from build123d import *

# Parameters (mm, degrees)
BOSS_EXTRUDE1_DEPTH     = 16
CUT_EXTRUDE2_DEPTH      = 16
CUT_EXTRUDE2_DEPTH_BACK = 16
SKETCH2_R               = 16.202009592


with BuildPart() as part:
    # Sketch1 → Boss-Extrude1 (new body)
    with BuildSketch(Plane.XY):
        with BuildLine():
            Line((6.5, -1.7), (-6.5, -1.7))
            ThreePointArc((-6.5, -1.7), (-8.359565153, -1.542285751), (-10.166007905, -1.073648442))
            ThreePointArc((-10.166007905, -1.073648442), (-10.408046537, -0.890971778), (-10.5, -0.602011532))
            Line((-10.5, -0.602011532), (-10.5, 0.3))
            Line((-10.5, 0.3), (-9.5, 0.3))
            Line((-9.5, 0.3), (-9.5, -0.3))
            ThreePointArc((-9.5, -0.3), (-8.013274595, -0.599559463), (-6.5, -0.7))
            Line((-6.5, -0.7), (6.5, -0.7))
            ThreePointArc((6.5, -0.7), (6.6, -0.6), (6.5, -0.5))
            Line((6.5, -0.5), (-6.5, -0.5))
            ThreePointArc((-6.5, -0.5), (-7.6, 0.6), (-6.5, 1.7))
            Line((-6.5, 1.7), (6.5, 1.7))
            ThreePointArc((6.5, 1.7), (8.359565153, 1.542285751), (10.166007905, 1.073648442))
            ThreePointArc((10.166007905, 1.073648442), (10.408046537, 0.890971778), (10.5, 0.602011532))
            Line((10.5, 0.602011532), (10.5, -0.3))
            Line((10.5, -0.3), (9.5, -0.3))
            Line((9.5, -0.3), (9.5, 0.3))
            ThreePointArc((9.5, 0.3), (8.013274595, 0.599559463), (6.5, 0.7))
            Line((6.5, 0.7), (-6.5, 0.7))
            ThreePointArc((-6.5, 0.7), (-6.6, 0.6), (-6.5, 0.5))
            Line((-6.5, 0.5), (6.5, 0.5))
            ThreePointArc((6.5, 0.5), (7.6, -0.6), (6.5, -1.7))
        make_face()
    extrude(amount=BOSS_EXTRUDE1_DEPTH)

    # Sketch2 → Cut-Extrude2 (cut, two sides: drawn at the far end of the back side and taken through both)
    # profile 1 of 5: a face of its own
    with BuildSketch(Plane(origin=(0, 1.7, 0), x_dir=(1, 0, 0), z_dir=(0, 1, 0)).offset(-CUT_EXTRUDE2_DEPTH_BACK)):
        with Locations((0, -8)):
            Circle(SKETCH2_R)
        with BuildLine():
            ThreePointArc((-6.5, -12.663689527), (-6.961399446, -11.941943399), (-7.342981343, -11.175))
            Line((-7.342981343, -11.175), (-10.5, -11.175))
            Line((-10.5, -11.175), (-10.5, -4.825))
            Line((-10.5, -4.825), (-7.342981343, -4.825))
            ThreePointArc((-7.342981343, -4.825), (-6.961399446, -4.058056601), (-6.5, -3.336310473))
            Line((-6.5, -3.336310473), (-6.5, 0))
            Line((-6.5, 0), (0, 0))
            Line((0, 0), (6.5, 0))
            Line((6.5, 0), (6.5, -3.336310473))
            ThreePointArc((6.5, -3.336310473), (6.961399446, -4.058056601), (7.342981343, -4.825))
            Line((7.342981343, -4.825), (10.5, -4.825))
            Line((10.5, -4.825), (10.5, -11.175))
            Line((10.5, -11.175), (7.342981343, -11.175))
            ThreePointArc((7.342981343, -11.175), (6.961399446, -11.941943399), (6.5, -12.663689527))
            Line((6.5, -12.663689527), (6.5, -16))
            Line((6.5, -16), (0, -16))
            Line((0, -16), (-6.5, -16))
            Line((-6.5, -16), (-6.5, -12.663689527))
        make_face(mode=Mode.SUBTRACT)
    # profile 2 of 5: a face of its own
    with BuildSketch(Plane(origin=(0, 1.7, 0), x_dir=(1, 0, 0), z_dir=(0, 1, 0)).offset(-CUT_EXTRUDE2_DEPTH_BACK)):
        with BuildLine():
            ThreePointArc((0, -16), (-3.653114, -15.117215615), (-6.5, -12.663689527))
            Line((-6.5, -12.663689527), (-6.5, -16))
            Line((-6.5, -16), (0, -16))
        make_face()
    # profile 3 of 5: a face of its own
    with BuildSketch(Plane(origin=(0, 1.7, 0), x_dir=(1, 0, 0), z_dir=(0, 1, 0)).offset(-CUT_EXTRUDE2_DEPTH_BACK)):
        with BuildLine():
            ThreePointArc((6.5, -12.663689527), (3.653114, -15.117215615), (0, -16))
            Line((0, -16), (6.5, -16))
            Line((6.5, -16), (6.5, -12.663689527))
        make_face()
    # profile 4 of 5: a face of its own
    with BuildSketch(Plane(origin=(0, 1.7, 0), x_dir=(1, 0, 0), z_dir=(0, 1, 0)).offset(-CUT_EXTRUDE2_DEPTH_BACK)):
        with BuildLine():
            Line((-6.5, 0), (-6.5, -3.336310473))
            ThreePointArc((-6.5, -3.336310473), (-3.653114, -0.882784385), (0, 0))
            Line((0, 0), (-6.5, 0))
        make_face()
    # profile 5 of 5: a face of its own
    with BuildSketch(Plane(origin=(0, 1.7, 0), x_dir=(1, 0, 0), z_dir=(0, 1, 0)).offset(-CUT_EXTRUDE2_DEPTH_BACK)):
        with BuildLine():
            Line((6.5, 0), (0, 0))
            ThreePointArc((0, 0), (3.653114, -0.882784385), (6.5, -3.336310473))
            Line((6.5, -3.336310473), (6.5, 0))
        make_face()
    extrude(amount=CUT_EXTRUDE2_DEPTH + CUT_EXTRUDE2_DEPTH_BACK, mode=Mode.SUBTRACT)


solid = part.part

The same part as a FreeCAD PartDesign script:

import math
import FreeCAD as App
import Part
import Sketcher

V = App.Vector
Q = App.Units.Quantity

doc = App.newDocument("Part")
params = doc.addObject("Spreadsheet::Sheet", "Params")
for row, (alias, value) in enumerate([
    ("sketch1_radius", "1.1 mm"),
    ("sketch1_radius2", "0.1 mm"),
    ("sketch1_radius3", "0.5 mm"),
    ("sketch1_width", "13 mm"),
    ("sketch1_width2", "1 mm"),
    ("pad1_length", "16 mm"),
    ("sketch2_radius", "8 mm"),
    ("sketch2_height", "6.35 mm"),
], start=1):
    params.set(f"A{row}", alias)
    params.set(f"B{row}", "=" + value)
    params.setAlias(f"B{row}", alias)

body = doc.addObject("PartDesign::Body", "Body")

sketch1 = body.newObject("Sketcher::SketchObject", "Sketch")
sketch1.AttachmentSupport = (doc.getObject("XY_Plane"), [""])
sketch1.MapMode = "FlatFace"
sketch1.addGeometry([
    Part.LineSegment(V(-6.5, -1.7, 0), V(6.5, -1.7, 0)),
    Part.ArcOfCircle(Part.Circle(V(6.5, -0.6, 0), V(0, 0, 1), 1.1), math.radians(-90), math.radians(90)),
    Part.LineSegment(V(6.5, 0.5, 0), V(-6.5, 0.5, 0)),
    Part.ArcOfCircle(Part.Circle(V(-6.5, 0.6, 0), V(0, 0, 1), 0.1), math.radians(90), math.radians(270)),
    Part.LineSegment(V(-6.5, 0.7, 0), V(6.5, 0.7, 0)),
    Part.ArcOfCircle(Part.Circle(V(6.5, -10.75, 0), V(0, 0, 1), 11.45), math.radians(74.81), math.radians(90)),
    Part.LineSegment(V(9.5, 0.3, 0), V(9.5, -0.3, 0)),
    Part.LineSegment(V(9.5, -0.3, 0), V(10.5, -0.3, 0)),
    Part.LineSegment(V(10.5, -0.3, 0), V(10.5, 0.6, 0)),
    Part.ArcOfCircle(Part.Circle(V(10, 0.6, 0), V(0, 0, 1), 0.5), math.radians(0), math.radians(71)),
    Part.ArcOfCircle(Part.Circle(V(6.5, -9.34, 0), V(0, 0, 1), 11.04), math.radians(70.61), math.radians(90)),
    Part.LineSegment(V(6.5, 1.7, 0), V(-6.5, 1.7, 0)),
    Part.ArcOfCircle(Part.Circle(V(-6.5, 0.6, 0), V(0, 0, 1), 1.1), math.radians(90), math.radians(270)),
    Part.LineSegment(V(-6.5, -0.5, 0), V(6.5, -0.5, 0)),
    Part.ArcOfCircle(Part.Circle(V(6.5, -0.6, 0), V(0, 0, 1), 0.1), math.radians(-90), math.radians(90)),
    Part.LineSegment(V(6.5, -0.7, 0), V(-6.5, -0.7, 0)),
    Part.ArcOfCircle(Part.Circle(V(-6.5, 10.75, 0), V(0, 0, 1), 11.45), math.radians(-105.19), math.radians(-90)),
    Part.LineSegment(V(-9.5, -0.3, 0), V(-9.5, 0.3, 0)),
    Part.LineSegment(V(-9.5, 0.3, 0), V(-10.5, 0.3, 0)),
    Part.LineSegment(V(-10.5, 0.3, 0), V(-10.5, -0.6, 0)),
    Part.ArcOfCircle(Part.Circle(V(-10, -0.6, 0), V(0, 0, 1), 0.5), math.radians(180), math.radians(251)),
    Part.ArcOfCircle(Part.Circle(V(-6.5, 9.34, 0), V(0, 0, 1), 11.04), math.radians(-109.39), math.radians(-90)),
], False)
sketch1.addConstraint([
    Sketcher.Constraint("Tangent", 0, 2, 1, 1),
    Sketcher.Constraint("Tangent", 1, 2, 2, 1),
    Sketcher.Constraint("Tangent", 2, 2, 3, 2),
    Sketcher.Constraint("Tangent", 3, 1, 4, 1),
    Sketcher.Constraint("Tangent", 4, 2, 5, 2),
    Sketcher.Constraint("Coincident", 5, 1, 6, 1),
    Sketcher.Constraint("Coincident", 6, 2, 7, 1),
    Sketcher.Constraint("Coincident", 7, 2, 8, 1),
    Sketcher.Constraint("Tangent", 8, 2, 9, 1),
    Sketcher.Constraint("Tangent", 9, 2, 10, 1),
    Sketcher.Constraint("Tangent", 10, 2, 11, 1),
    Sketcher.Constraint("Tangent", 11, 2, 12, 1),
    Sketcher.Constraint("Tangent", 12, 2, 13, 1),
    Sketcher.Constraint("Tangent", 13, 2, 14, 2),
    Sketcher.Constraint("Tangent", 14, 1, 15, 1),
    Sketcher.Constraint("Tangent", 15, 2, 16, 2),
    Sketcher.Constraint("Coincident", 16, 1, 17, 1),
    Sketcher.Constraint("Coincident", 17, 2, 18, 1),
    Sketcher.Constraint("Coincident", 18, 2, 19, 1),
    Sketcher.Constraint("Tangent", 19, 2, 20, 1),
    Sketcher.Constraint("Tangent", 20, 2, 21, 1),
    Sketcher.Constraint("Tangent", 21, 2, 0, 1),
    Sketcher.Constraint("Horizontal", 0),
    Sketcher.Constraint("Horizontal", 2),
    Sketcher.Constraint("Horizontal", 4),
    Sketcher.Constraint("Vertical", 6),
    Sketcher.Constraint("Horizontal", 7),
    Sketcher.Constraint("Vertical", 8),
    Sketcher.Constraint("Horizontal", 11),
    Sketcher.Constraint("Horizontal", 13),
    Sketcher.Constraint("Horizontal", 15),
    Sketcher.Constraint("Vertical", 17),
    Sketcher.Constraint("Horizontal", 18),
    Sketcher.Constraint("Vertical", 19),
    Sketcher.Constraint("Coincident", 12, 3, 3, 3),
    Sketcher.Constraint("Coincident", 14, 3, 1, 3),
    Sketcher.Constraint("Equal", 1, 12),
    Sketcher.Constraint("Equal", 5, 16),
    Sketcher.Constraint("Equal", 9, 20),
    Sketcher.Constraint("Equal", 10, 21),
    Sketcher.Constraint("Symmetric", 1, 3, 3, 3, -1, 1),
    Sketcher.Constraint("Symmetric", 9, 3, 20, 3, -1, 1),
    Sketcher.Constraint("Symmetric", 5, 1, 16, 1, -1, 1),
    Sketcher.Constraint("Horizontal", 7, 2, 16, 1),
    Sketcher.Constraint("Horizontal", 5, 1, 17, 2),
    Sketcher.Constraint("Vertical", 1, 3, 5, 3),
    Sketcher.Constraint("Vertical", 5, 3, 10, 3),
    Sketcher.Constraint("Radius", 1, Q("1.1 mm")),
    Sketcher.Constraint("Radius", 3, Q("0.1 mm")),
    Sketcher.Constraint("Radius", 9, Q("0.5 mm")),
    Sketcher.Constraint("DistanceX", 0, 1, 0, 2, Q("13 mm")),
    Sketcher.Constraint("DistanceX", 7, 1, 7, 2, Q("1 mm")),
    Sketcher.Constraint("Radius", 5, Q("11.45 mm")),
    Sketcher.Constraint("DistanceY", 6, 2, 6, 1, Q("0.6 mm")),
    Sketcher.Constraint("Radius", 10, Q("11.041667 mm")),
])
sketch1.setExpression("Constraints[47]", "Params.sketch1_radius")
sketch1.setExpression("Constraints[48]", "Params.sketch1_radius2")
sketch1.setExpression("Constraints[49]", "Params.sketch1_radius3")
sketch1.setExpression("Constraints[50]", "Params.sketch1_width")
sketch1.setExpression("Constraints[51]", "Params.sketch1_width2")
pad1 = body.newObject("PartDesign::Pad", "Pad")
pad1.Profile = sketch1
pad1.setExpression("Length", "Params.pad1_length")

sketch2 = body.newObject("Sketcher::SketchObject", "Sketch001")
sketch2.AttachmentSupport = (doc.getObject("XZ_Plane"), [""])
sketch2.MapMode = "FlatFace"
sketch2.AttachmentOffset = App.Placement(V(0, 0, -1.7), App.Rotation())
sketch2.addGeometry([
    Part.Circle(V(0, 8, 0), V(0, 0, 1), 16.2),
    Part.ArcOfCircle(Part.Circle(V(0, 8, 0), V(0, 0, 1), 8), math.radians(23.38), math.radians(35.66)),
    Part.ArcOfCircle(Part.Circle(V(0, 8, 0), V(0, 0, 1), 8), math.radians(36), math.radians(90)),
    Part.ArcOfCircle(Part.Circle(V(0, 8, 0), V(0, 0, 1), 8), math.radians(90), math.radians(144)),
    Part.ArcOfCircle(Part.Circle(V(0, 8, 0), V(0, 0, 1), 8), math.radians(144.34), math.radians(156.62)),
    Part.LineSegment(V(-7.3, 11.2, 0), V(-10.5, 11.2, 0)),
    Part.LineSegment(V(-10.5, 11.2, 0), V(-10.5, 4.8, 0)),
    Part.LineSegment(V(-10.5, 4.8, 0), V(-7.3, 4.8, 0)),
    Part.ArcOfCircle(Part.Circle(V(0, 8, 0), V(0, 0, 1), 8), math.radians(-156.62), math.radians(-144.34)),
    Part.ArcOfCircle(Part.Circle(V(0, 8, 0), V(0, 0, 1), 8), math.radians(-144), math.radians(-90)),
    Part.ArcOfCircle(Part.Circle(V(0, 8, 0), V(0, 0, 1), 8), math.radians(-90), math.radians(-36)),
    Part.ArcOfCircle(Part.Circle(V(0, 8, 0), V(0, 0, 1), 8), math.radians(-35.66), math.radians(-23.38)),
    Part.LineSegment(V(7.3, 4.8, 0), V(10.5, 4.8, 0)),
    Part.LineSegment(V(10.5, 4.8, 0), V(10.5, 11.2, 0)),
    Part.LineSegment(V(10.5, 11.2, 0), V(7.3, 11.2, 0)),
], False)
sketch2.addConstraint([
    Sketcher.Constraint("Tangent", 1, 2, 2, 1),
    Sketcher.Constraint("Tangent", 2, 2, 3, 1),
    Sketcher.Constraint("Tangent", 3, 2, 4, 1),
    Sketcher.Constraint("Coincident", 4, 2, 5, 1),
    Sketcher.Constraint("Coincident", 5, 2, 6, 1),
    Sketcher.Constraint("Coincident", 6, 2, 7, 1),
    Sketcher.Constraint("Coincident", 7, 2, 8, 1),
    Sketcher.Constraint("Tangent", 8, 2, 9, 1),
    Sketcher.Constraint("Tangent", 9, 2, 10, 1),
    Sketcher.Constraint("Tangent", 10, 2, 11, 1),
    Sketcher.Constraint("Coincident", 11, 2, 12, 1),
    Sketcher.Constraint("Coincident", 12, 2, 13, 1),
    Sketcher.Constraint("Coincident", 13, 2, 14, 1),
    Sketcher.Constraint("Coincident", 14, 2, 1, 1),
    Sketcher.Constraint("Horizontal", 5),
    Sketcher.Constraint("Vertical", 6),
    Sketcher.Constraint("Horizontal", 7),
    Sketcher.Constraint("Horizontal", 12),
    Sketcher.Constraint("Vertical", 13),
    Sketcher.Constraint("Horizontal", 14),
    Sketcher.Constraint("Coincident", 9, 2, -1, 1),
    Sketcher.Constraint("Coincident", 1, 3, 0, 3),
    Sketcher.Constraint("Coincident", 3, 3, 0, 3),
    Sketcher.Constraint("Coincident", 8, 3, 0, 3),
    Sketcher.Constraint("Coincident", 10, 3, 0, 3),
    Sketcher.Constraint("Equal", 3, 4),
    Sketcher.Constraint("Equal", 4, 8),
    Sketcher.Constraint("Equal", 10, 11),
    Sketcher.Constraint("Symmetric", 1, 2, 3, 2, -2),
    Sketcher.Constraint("Symmetric", 6, 2, 12, 2, -2),
    Sketcher.Constraint("PointOnObject", 2, 2, -2),
    Sketcher.Constraint("Horizontal", 8, 2, 10, 2),
    Sketcher.Constraint("Horizontal", 5, 2, 13, 2),
    Sketcher.Constraint("Vertical", 4, 2, 7, 2),
    Sketcher.Constraint("Vertical", 3, 2, 8, 2),
    Sketcher.Constraint("Radius", 1, Q("8 mm")),
    Sketcher.Constraint("DistanceX", 5, 2, 3, 2, Q("4 mm")),
    Sketcher.Constraint("DistanceY", 6, 2, 6, 1, Q("6.35 mm")),
    Sketcher.Constraint("DistanceX", -1, 1, 1, 2, Q("6.5 mm")),
    Sketcher.Constraint("Diameter", 0, Q("32.404019 mm")),
])
sketch2.setExpression("Constraints[35]", "Params.sketch2_radius")
sketch2.setExpression("Constraints[37]", "Params.sketch2_height")
pocket1 = body.newObject("PartDesign::Pocket", "Pocket")
pocket1.Profile = sketch2
pocket1.Type = "ThroughAll"
pocket1.Midplane = True

doc.recompute()
